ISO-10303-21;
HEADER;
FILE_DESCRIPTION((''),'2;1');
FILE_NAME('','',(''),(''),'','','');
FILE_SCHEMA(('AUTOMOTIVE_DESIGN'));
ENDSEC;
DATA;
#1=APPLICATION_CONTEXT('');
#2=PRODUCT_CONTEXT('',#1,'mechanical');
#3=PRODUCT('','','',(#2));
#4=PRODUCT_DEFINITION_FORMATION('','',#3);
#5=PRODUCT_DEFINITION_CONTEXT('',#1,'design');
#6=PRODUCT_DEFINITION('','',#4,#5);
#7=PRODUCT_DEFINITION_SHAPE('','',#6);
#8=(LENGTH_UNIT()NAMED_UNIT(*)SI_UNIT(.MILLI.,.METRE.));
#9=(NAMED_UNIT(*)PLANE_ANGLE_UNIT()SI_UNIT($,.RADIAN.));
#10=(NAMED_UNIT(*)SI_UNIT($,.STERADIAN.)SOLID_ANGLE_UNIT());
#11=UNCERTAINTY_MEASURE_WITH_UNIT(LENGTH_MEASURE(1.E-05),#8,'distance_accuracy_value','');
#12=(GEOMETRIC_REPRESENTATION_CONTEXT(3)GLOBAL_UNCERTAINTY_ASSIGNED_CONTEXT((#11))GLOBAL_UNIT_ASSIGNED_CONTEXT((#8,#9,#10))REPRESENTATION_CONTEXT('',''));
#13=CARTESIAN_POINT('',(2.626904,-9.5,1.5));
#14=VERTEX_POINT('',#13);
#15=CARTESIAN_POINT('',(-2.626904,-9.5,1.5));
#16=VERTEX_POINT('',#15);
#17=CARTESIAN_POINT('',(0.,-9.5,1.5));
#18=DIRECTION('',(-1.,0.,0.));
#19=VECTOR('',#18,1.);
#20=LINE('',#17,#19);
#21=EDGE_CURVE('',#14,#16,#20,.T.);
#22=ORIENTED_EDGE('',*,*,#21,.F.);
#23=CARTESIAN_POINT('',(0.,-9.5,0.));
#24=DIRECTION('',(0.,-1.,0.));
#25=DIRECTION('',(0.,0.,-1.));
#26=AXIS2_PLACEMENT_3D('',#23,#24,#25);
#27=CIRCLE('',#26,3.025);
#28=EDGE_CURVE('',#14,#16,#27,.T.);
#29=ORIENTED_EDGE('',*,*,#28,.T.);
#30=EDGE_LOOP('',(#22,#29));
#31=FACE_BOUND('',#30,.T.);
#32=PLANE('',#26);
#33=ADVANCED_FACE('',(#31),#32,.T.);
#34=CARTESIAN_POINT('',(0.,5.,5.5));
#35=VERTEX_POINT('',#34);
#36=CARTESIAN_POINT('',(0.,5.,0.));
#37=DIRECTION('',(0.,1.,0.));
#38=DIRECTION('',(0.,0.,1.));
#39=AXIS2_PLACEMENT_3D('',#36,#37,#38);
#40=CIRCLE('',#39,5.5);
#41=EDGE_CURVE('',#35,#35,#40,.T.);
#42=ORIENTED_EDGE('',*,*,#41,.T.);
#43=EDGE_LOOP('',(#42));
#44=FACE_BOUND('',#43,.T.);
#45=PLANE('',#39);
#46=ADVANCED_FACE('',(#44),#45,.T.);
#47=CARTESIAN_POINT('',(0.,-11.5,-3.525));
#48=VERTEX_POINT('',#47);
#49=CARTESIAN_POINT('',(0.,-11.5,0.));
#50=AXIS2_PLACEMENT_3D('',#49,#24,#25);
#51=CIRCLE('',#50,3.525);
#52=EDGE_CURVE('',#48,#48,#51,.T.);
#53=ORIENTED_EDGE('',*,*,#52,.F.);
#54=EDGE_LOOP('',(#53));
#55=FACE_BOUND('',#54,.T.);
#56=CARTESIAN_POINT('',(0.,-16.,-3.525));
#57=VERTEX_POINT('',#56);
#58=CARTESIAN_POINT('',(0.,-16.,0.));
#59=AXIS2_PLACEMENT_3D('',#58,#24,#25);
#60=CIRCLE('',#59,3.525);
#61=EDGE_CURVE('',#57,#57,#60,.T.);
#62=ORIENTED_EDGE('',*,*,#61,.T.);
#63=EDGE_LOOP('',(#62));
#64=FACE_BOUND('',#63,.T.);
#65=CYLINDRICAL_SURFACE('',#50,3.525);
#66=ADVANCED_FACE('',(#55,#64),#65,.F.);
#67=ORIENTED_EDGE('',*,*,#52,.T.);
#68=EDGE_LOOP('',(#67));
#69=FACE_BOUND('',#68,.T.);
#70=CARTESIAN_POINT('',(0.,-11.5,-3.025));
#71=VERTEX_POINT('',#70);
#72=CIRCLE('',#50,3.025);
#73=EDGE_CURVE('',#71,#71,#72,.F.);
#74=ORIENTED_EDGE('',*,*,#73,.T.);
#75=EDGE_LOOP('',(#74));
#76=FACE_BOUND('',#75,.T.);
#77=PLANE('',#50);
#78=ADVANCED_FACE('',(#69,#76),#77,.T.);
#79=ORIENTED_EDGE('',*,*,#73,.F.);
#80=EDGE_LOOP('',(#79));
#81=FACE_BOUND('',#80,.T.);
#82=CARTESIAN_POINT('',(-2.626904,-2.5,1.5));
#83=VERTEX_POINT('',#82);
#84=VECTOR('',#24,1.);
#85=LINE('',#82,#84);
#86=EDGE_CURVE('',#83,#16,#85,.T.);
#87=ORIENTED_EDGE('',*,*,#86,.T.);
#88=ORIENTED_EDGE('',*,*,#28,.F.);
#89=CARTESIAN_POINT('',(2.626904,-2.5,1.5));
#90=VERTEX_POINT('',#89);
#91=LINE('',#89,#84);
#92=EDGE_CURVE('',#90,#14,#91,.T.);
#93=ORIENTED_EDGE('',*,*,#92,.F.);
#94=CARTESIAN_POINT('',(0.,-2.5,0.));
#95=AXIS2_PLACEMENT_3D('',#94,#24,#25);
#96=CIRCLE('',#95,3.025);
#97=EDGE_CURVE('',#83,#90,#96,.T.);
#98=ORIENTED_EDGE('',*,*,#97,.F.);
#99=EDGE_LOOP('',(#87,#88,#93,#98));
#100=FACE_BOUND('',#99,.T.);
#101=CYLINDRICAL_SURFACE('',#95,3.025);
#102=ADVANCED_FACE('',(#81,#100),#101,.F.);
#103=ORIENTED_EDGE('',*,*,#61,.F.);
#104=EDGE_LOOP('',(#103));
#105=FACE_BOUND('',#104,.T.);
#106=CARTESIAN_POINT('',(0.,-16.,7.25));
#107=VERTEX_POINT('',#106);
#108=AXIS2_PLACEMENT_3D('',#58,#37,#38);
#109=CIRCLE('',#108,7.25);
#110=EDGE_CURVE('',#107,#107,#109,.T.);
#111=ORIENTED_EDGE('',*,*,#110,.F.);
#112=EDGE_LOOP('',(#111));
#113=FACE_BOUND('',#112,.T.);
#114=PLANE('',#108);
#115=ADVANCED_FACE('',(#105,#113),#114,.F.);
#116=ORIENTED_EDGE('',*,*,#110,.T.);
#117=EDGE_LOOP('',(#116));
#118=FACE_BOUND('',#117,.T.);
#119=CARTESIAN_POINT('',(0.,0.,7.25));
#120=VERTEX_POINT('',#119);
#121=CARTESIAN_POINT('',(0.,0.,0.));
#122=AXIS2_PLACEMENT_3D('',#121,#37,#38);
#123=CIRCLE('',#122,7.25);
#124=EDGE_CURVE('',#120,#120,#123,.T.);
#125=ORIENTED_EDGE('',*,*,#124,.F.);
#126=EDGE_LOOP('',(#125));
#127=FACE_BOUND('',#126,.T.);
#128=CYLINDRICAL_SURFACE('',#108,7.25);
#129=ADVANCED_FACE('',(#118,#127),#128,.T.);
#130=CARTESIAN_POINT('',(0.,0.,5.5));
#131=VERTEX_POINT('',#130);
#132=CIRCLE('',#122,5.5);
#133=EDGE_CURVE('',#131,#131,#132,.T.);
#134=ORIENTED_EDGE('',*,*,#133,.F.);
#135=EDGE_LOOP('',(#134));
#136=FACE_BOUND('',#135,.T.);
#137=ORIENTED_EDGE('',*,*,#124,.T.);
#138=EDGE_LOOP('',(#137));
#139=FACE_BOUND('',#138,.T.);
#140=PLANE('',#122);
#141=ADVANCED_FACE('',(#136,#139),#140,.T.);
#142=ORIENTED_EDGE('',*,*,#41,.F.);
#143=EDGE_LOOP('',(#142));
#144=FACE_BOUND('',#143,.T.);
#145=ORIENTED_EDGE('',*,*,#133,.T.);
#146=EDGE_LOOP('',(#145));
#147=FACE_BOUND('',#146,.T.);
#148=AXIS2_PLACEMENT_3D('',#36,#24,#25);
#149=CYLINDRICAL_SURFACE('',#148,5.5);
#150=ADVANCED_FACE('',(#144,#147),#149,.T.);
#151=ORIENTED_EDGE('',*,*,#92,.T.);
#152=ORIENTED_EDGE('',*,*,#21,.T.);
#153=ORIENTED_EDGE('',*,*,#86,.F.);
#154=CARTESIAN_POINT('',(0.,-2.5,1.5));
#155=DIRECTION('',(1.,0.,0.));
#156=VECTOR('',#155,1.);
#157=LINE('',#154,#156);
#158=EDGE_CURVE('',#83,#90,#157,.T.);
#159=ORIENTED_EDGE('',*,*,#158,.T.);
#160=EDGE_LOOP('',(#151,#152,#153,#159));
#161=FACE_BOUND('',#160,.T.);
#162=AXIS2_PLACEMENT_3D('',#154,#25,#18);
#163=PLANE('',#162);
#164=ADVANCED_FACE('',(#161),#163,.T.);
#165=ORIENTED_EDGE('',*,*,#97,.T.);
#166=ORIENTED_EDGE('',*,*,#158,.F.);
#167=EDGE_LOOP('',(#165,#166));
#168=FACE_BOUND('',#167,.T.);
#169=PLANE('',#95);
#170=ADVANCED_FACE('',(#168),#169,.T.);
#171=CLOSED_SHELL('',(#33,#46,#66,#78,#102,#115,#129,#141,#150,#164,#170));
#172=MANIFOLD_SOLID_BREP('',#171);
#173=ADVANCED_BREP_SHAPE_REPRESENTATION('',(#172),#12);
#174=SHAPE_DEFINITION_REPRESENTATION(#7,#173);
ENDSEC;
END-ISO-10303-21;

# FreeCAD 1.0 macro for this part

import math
import FreeCAD as App
import Part
import Sketcher
from FreeCAD import Vector
Q = App.Units.Quantity

doc = App.newDocument("Part")
body = doc.addObject("PartDesign::Body", "Body")

sketch1 = body.newObject("Sketcher::SketchObject", "Sketch")
sketch1.AttachmentSupport = (doc.getObject("XZ_Plane"), [""])
sketch1.MapMode = "FlatFace"
sketch1.addGeometry(Part.Circle(Vector(0, 0, 0), Vector(0, 0, 1), 6), False)
sketch1.addConstraint([
    Sketcher.Constraint("Coincident", 0, 3, -1, 1),
    Sketcher.Constraint("Diameter", 0, Q("11 mm")),
])
pad1 = body.newObject("PartDesign::Pad", "Pad")
pad1.Profile = sketch1
pad1.Length = 5
pad1.Reversed = True

sketch2 = body.newObject("Sketcher::SketchObject", "Sketch001")
sketch2.AttachmentSupport = (doc.getObject("XZ_Plane"), [""])
sketch2.MapMode = "FlatFace"
sketch2.addGeometry(Part.Circle(Vector(0, 0, 0), Vector(0, 0, 1), 7), False)
sketch2.addConstraint([
    Sketcher.Constraint("Coincident", 0, 3, -1, 1),
    Sketcher.Constraint("Diameter", 0, Q("14.5 mm")),
])
pad2 = body.newObject("PartDesign::Pad", "Pad001")
pad2.Profile = sketch2
pad2.Length = 16

sketch3 = body.newObject("Sketcher::SketchObject", "Sketch002")
sketch3.AttachmentSupport = (doc.getObject("XZ_Plane"), [""])
sketch3.MapMode = "FlatFace"
sketch3.AttachmentOffset = App.Placement(Vector(0, 0, 16), App.Rotation())
sketch3.addGeometry([
    Part.LineSegment(Vector(2.6, 1.5, 0), Vector(-2.6, 1.5, 0)),
    Part.ArcOfCircle(Part.Circle(Vector(0, 0, 0), Vector(0, 0, 1), 3), math.radians(150), math.radians(360)),
    Part.ArcOfCircle(Part.Circle(Vector(0, 0, 0), Vector(0, 0, 1), 3), math.radians(0), math.radians(30)),
], False)
sketch3.addConstraint([
    Sketcher.Constraint("Coincident", 0, 2, 1, 1),
    Sketcher.Constraint("Tangent", 1, 2, 2, 1),
    Sketcher.Constraint("Coincident", 2, 2, 0, 1),
    Sketcher.Constraint("Horizontal", 0),
    Sketcher.Constraint("Coincident", 1, 3, -1, 1),
    Sketcher.Constraint("Equal", 1, 2),
    Sketcher.Constraint("PointOnObject", 1, 2, -1),
    Sketcher.Constraint("Radius", 1, Q("3.025 mm")),
    Sketcher.Constraint("DistanceY", -1, 1, 0, 2, Q("1.5 mm")),
])
pocket1 = body.newObject("PartDesign::Pocket", "Pocket")
pocket1.Profile = sketch3
pocket1.Length = 13.5

sketch4 = body.newObject("Sketcher::SketchObject", "Sketch003")
sketch4.AttachmentSupport = (doc.getObject("XZ_Plane"), [""])
sketch4.MapMode = "FlatFace"
sketch4.AttachmentOffset = App.Placement(Vector(0, 0, 16), App.Rotation())
sketch4.addGeometry(Part.Circle(Vector(0, 0, 0), Vector(0, 0, 1), 3), False)
sketch4.addConstraint([
    Sketcher.Constraint("Coincident", 0, 3, -1, 1),
    Sketcher.Constraint("Diameter", 0, Q("6.05 mm")),
])
pocket2 = body.newObject("PartDesign::Pocket", "Pocket001")
pocket2.Profile = sketch4
pocket2.Length = 6.5

sketch5 = body.newObject("Sketcher::SketchObject", "Sketch004")
sketch5.AttachmentSupport = (doc.getObject("XZ_Plane"), [""])
sketch5.MapMode = "FlatFace"
sketch5.AttachmentOffset = App.Placement(Vector(0, 0, 16), App.Rotation())
sketch5.addGeometry(Part.Circle(Vector(0, 0, 0), Vector(0, 0, 1), 3.5), False)
sketch5.addConstraint([
    Sketcher.Constraint("Coincident", 0, 3, -1, 1),
    Sketcher.Constraint("Diameter", 0, Q("7.05 mm")),
])
pocket3 = body.newObject("PartDesign::Pocket", "Pocket002")
pocket3.Profile = sketch5
pocket3.Length = 4.5

doc.recompute()
